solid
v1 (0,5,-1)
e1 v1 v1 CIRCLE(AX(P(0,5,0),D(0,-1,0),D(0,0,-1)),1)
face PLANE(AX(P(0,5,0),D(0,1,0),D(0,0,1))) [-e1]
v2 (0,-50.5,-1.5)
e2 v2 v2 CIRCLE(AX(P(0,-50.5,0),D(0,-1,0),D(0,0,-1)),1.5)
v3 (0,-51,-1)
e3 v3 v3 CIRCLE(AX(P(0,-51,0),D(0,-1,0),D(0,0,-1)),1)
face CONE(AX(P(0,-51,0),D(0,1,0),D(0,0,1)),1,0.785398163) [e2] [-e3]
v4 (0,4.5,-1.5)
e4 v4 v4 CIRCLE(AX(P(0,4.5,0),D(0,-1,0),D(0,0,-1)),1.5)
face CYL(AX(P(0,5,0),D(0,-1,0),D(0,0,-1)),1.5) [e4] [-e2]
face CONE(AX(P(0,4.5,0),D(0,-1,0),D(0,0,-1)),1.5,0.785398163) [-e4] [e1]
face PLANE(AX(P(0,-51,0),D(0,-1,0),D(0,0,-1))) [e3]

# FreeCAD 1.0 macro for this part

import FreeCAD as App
import Part
import Sketcher

V = App.Vector


def add_polygon(sketch, points):
    """Adds a closed chain of lines whose ends are joined by coincident constraints."""
    first, n = sketch.GeometryCount, len(points)
    for a, b in zip(points, points[1:] + points[:1]):
        sketch.addGeometry(Part.LineSegment(App.Vector(*a, 0), App.Vector(*b, 0)), False)
    for i in range(n):
        sketch.addConstraint(Sketcher.Constraint("Coincident", first + i, 2, first + (i + 1) % n, 1))

doc = App.newDocument("Part")
body = doc.addObject("PartDesign::Body", "Body")

sketch1 = doc.addObject("Sketcher::SketchObject", "Sketch")
body.addObject(sketch1)
sketch1.AttachmentSupport = (doc.XY_Plane, [""])
sketch1.MapMode = "FlatFace"
add_polygon(sketch1, [(1.5, 4.5), (1, 5), (0, 5), (0, -51), (1, -51), (1.5, -50.5)])
sketch1.addConstraint([
    Sketcher.Constraint("Horizontal", 1),
    Sketcher.Constraint("Vertical", 2),
    Sketcher.Constraint("Horizontal", 3),
    Sketcher.Constraint("Vertical", 5),
    Sketcher.Constraint("PointOnObject", 1, 2, -2),
    Sketcher.Constraint("Perpendicular", 0, 4),
    Sketcher.Constraint("Vertical", 0, 2, 3, 2),
    Sketcher.Constraint("Equal", 0, 4),
    Sketcher.Constraint("DistanceX", 1, 2, 1, 1, 1.0),
    Sketcher.Constraint("DistanceY", 2, 2, 2, 1, 56.0),
    Sketcher.Constraint("DistanceY", 5, 1, 5, 2, 55.0),
    Sketcher.Constraint("DistanceY", -1, 1, 0, 2, 5.0),
])
revolution = doc.addObject("PartDesign::Revolution", "Revolution")
body.addObject(revolution)
revolution.Profile = sketch1
revolution.ReferenceAxis = (sketch1, ["V_Axis"])
revolution.Angle = 360

doc.recompute()
